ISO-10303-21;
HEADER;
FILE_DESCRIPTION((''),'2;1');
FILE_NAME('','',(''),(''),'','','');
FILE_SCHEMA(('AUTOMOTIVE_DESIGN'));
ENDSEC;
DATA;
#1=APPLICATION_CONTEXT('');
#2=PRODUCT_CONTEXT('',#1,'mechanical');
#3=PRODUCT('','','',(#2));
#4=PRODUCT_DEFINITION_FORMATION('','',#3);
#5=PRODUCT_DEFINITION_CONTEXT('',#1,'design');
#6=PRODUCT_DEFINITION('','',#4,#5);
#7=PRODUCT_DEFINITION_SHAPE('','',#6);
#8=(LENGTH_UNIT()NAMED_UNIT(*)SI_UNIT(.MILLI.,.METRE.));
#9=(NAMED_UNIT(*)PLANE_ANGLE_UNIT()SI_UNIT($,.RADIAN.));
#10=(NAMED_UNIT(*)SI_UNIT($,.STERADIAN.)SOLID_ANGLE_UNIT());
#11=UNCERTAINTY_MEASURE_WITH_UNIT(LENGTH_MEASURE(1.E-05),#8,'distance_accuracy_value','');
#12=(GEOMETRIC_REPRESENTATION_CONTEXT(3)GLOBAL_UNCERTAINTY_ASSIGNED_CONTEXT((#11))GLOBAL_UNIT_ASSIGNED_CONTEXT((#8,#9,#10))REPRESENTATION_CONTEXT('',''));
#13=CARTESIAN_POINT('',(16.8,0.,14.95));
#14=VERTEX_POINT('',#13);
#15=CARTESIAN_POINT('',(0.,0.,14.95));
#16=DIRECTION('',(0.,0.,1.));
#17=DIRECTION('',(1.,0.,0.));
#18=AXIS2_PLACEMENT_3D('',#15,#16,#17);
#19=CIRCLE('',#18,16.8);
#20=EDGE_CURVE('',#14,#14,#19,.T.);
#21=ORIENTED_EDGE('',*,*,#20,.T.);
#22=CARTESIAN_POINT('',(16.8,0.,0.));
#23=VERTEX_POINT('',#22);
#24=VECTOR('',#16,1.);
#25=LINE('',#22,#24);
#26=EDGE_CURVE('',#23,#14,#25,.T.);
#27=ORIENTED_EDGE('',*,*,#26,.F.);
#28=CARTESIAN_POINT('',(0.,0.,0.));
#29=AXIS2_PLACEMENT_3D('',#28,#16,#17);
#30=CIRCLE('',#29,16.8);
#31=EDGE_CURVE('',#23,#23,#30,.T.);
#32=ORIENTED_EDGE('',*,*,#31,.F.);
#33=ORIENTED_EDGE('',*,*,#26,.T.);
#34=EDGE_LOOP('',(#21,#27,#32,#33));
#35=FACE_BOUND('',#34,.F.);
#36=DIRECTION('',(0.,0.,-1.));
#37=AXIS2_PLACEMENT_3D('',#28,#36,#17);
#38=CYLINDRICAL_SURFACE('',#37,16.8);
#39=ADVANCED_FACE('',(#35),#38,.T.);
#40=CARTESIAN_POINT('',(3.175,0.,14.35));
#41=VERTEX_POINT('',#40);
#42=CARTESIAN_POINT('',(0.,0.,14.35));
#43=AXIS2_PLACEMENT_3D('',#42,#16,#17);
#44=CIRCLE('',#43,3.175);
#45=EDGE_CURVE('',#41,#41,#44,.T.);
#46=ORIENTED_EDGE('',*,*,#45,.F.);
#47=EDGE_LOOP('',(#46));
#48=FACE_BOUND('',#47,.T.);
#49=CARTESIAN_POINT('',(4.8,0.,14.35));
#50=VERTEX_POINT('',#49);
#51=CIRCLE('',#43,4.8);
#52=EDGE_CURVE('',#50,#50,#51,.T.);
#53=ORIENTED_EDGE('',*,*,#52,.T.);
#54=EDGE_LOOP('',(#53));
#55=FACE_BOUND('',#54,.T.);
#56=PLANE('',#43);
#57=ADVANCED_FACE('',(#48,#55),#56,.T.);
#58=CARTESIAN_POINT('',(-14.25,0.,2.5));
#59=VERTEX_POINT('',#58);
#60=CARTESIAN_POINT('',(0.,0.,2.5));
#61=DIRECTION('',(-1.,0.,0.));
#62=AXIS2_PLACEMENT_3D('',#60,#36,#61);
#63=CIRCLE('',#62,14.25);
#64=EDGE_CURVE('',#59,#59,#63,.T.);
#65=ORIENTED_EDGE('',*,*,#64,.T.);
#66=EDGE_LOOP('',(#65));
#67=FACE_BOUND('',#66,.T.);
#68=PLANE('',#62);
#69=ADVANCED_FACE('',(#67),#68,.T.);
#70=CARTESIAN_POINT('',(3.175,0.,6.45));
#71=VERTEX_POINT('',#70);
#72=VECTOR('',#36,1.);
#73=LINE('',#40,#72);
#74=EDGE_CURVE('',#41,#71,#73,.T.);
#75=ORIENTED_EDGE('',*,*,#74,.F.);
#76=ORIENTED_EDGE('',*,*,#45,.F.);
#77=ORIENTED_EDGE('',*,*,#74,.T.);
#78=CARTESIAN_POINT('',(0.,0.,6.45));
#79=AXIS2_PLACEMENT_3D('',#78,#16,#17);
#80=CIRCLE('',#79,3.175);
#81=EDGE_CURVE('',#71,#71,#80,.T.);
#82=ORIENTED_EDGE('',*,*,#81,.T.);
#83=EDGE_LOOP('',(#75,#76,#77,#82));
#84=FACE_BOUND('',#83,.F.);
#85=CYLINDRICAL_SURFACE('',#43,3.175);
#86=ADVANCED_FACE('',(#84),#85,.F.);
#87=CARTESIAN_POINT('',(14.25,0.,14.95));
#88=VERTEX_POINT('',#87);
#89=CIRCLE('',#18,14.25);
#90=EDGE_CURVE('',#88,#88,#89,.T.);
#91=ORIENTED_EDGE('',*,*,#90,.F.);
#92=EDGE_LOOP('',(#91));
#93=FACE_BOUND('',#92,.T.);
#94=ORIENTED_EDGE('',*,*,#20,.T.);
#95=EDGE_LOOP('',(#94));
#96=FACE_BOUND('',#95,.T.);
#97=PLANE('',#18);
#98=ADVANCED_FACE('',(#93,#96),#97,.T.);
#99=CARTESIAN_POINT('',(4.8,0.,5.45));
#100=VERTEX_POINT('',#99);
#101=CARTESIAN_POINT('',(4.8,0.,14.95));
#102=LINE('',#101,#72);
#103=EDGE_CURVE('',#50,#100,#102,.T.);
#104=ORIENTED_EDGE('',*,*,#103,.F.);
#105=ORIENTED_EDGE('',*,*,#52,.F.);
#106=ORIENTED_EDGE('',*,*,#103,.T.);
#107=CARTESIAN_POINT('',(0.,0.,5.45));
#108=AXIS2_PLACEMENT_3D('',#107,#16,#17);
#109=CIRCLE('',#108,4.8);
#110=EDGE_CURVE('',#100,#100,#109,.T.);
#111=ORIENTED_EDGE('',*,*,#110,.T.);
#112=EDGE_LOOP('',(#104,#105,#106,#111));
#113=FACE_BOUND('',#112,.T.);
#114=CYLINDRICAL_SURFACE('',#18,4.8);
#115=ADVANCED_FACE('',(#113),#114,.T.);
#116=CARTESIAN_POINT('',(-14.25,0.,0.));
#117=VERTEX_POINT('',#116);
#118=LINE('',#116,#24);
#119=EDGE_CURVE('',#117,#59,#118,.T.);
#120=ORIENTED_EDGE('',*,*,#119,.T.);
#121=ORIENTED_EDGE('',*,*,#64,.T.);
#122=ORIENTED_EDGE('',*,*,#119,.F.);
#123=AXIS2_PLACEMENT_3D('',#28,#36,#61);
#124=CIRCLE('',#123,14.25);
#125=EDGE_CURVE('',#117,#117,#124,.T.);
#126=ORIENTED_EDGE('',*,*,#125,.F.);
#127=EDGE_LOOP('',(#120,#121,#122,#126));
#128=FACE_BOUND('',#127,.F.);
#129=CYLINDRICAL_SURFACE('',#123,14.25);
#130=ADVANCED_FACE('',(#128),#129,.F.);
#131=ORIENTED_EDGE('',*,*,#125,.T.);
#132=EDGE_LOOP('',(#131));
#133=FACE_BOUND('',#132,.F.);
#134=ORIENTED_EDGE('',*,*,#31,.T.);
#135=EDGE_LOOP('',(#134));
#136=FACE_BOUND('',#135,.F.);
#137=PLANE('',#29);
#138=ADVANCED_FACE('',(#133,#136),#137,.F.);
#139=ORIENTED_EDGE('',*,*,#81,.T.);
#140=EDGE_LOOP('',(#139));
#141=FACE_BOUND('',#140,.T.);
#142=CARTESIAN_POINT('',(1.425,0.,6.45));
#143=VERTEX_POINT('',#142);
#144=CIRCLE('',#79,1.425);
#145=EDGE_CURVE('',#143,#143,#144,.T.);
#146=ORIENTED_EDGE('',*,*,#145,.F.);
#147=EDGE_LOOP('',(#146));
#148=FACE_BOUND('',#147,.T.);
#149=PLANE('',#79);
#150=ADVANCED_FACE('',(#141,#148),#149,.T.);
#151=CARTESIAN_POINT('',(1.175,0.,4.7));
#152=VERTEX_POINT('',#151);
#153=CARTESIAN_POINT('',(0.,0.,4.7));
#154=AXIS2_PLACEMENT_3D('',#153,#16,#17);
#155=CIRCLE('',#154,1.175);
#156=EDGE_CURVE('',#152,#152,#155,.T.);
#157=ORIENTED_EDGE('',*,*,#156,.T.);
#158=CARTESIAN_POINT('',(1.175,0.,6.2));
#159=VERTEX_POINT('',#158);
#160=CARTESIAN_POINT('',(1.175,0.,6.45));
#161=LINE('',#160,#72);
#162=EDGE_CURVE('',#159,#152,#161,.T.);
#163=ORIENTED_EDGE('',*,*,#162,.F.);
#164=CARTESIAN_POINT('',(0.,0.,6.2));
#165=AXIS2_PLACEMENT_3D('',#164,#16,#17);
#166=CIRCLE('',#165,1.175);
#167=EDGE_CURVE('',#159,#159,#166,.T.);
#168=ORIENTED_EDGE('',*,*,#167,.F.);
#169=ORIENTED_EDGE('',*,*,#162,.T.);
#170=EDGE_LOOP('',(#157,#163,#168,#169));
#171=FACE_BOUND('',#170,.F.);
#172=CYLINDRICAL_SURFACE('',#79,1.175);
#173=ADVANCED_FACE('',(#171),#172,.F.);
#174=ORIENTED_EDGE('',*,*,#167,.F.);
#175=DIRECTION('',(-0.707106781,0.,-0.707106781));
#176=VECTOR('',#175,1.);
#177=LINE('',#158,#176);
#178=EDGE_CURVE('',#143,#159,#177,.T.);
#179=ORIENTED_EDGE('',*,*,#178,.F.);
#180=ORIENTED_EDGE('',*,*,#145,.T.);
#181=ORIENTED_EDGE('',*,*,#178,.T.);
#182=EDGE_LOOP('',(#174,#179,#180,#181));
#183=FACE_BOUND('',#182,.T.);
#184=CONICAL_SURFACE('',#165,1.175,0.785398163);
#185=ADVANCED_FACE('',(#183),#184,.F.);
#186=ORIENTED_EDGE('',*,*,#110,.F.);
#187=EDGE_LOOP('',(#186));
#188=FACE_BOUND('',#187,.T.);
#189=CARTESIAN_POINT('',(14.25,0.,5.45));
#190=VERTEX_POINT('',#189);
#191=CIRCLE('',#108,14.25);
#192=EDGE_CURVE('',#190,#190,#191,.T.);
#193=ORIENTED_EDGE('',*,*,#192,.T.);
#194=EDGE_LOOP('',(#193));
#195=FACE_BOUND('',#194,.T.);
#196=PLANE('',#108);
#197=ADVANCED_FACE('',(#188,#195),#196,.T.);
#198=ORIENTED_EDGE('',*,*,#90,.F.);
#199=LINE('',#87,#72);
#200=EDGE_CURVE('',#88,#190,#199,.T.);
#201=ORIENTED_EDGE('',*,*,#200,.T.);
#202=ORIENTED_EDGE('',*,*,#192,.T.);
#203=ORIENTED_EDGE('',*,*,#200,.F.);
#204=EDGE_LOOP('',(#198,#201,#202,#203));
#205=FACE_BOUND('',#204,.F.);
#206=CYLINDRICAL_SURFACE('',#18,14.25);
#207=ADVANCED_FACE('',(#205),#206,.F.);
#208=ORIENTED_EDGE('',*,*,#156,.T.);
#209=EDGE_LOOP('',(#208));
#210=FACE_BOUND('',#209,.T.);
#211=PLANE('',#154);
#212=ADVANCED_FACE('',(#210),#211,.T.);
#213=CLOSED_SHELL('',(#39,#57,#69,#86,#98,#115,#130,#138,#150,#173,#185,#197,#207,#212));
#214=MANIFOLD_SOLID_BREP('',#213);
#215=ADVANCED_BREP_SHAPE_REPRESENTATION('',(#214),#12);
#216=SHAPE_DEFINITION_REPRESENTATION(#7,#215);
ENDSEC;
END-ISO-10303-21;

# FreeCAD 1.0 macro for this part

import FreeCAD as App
import Part
import Sketcher

V = App.Vector


def edges_at(feature, points):
    """Names of the edges that pass closest to the given points."""
    edges = feature.Shape.Edges
    near = lambda p: min(range(len(edges)), key=lambda i: edges[i].distToShape(Part.Vertex(*p))[0])
    return sorted({f"Edge{near(p) + 1}" for p in points})

doc = App.newDocument("Part")
params = doc.addObject("Spreadsheet::Sheet", "Params")
for row, (alias, value) in enumerate([
    ("sketch1_diameter", "33.6 mm"),
    ("pad1_length", "14.95 mm"),
    ("sketch2_diameter", "28.5 mm"),
    ("pocket1_length", "2.5 mm"),
    ("sketch3_diameter", "28.5 mm"),
    ("sketch3_diameter2", "9.6 mm"),
    ("pocket2_length", "9.5 mm"),
    ("sketch4_diameter", "9.6 mm"),
    ("pocket3_length", "0.6 mm"),
    ("sketch5_diameter", "6.35 mm"),
    ("pocket4_length", "7.9 mm"),
    ("sketch6_diameter", "2.35 mm"),
    ("pocket5_length", "1.75 mm"),
    ("chamfer_size", "0.25 mm"),
], start=1):
    params.set(f"A{row}", alias)
    params.set(f"B{row}", "=" + value)
    params.setAlias(f"B{row}", alias)

body = doc.addObject("PartDesign::Body", "Body")

sketch1 = doc.addObject("Sketcher::SketchObject", "Sketch")
body.addObject(sketch1)
sketch1.AttachmentSupport = (doc.XY_Plane, [""])
sketch1.MapMode = "FlatFace"
sketch1.addGeometry(Part.Circle(V(0, 0, 0), V(0, 0, 1), 17), False)
sketch1.addConstraint(Sketcher.Constraint("Coincident", 0, 3, -1, 1))
sketch1.addConstraint(Sketcher.Constraint("Diameter", 0, 33.6))
sketch1.setExpression("Constraints[1]", "Params.sketch1_diameter")
pad1 = doc.addObject("PartDesign::Pad", "Pad")
body.addObject(pad1)
pad1.Profile = sketch1
pad1.setExpression("Length", "Params.pad1_length")

sketch2 = doc.addObject("Sketcher::SketchObject", "Sketch001")
body.addObject(sketch2)
sketch2.AttachmentSupport = (doc.XY_Plane, [""])
sketch2.MapMode = "FlatFace"
sketch2.addGeometry(Part.Circle(V(0, 0, 0), V(0, 0, 1), 14), False)
sketch2.addConstraint(Sketcher.Constraint("Coincident", 0, 3, -1, 1))
sketch2.addConstraint(Sketcher.Constraint("Diameter", 0, 28.5))
sketch2.setExpression("Constraints[1]", "Params.sketch2_diameter")
pocket1 = doc.addObject("PartDesign::Pocket", "Pocket")
body.addObject(pocket1)
pocket1.Profile = sketch2
pocket1.setExpression("Length", "Params.pocket1_length")
pocket1.Reversed = True

sketch3 = doc.addObject("Sketcher::SketchObject", "Sketch002")
body.addObject(sketch3)
sketch3.AttachmentSupport = (doc.XY_Plane, [""])
sketch3.MapMode = "FlatFace"
sketch3.AttachmentOffset = App.Placement(V(0, 0, 14.95), App.Rotation())
sketch3.addGeometry(Part.Circle(V(0, 0, 0), V(0, 0, 1), 14.2), False)
sketch3.addGeometry(Part.Circle(V(0, 0, 0), V(0, 0, 1), 4.8), False)
sketch3.addConstraint(Sketcher.Constraint("Coincident", 0, 3, -1, 1))
sketch3.addConstraint(Sketcher.Constraint("Coincident", 1, 3, -1, 1))
sketch3.addConstraint(Sketcher.Constraint("Diameter", 0, 28.5))
sketch3.addConstraint(Sketcher.Constraint("Diameter", 1, 9.6))
sketch3.setExpression("Constraints[2]", "Params.sketch3_diameter")
sketch3.setExpression("Constraints[3]", "Params.sketch3_diameter2")
pocket2 = doc.addObject("PartDesign::Pocket", "Pocket001")
body.addObject(pocket2)
pocket2.Profile = sketch3
pocket2.setExpression("Length", "Params.pocket2_length")

sketch4 = doc.addObject("Sketcher::SketchObject", "Sketch003")
body.addObject(sketch4)
sketch4.AttachmentSupport = (doc.XY_Plane, [""])
sketch4.MapMode = "FlatFace"
sketch4.AttachmentOffset = App.Placement(V(0, 0, 14.95), App.Rotation())
sketch4.addGeometry(Part.Circle(V(0, 0, 0), V(0, 0, 1), 4.8), False)
sketch4.addConstraint(Sketcher.Constraint("Coincident", 0, 3, -1, 1))
sketch4.addConstraint(Sketcher.Constraint("Diameter", 0, 9.6))
sketch4.setExpression("Constraints[1]", "Params.sketch4_diameter")
pocket3 = doc.addObject("PartDesign::Pocket", "Pocket002")
body.addObject(pocket3)
pocket3.Profile = sketch4
pocket3.setExpression("Length", "Params.pocket3_length")

sketch5 = doc.addObject("Sketcher::SketchObject", "Sketch004")
body.addObject(sketch5)
sketch5.AttachmentSupport = (doc.XY_Plane, [""])
sketch5.MapMode = "FlatFace"
sketch5.AttachmentOffset = App.Placement(V(0, 0, 14.35), App.Rotation())
sketch5.addGeometry(Part.Circle(V(0, 0, 0), V(0, 0, 1), 3.2), False)
sketch5.addConstraint(Sketcher.Constraint("Coincident", 0, 3, -1, 1))
sketch5.addConstraint(Sketcher.Constraint("Diameter", 0, 6.35))
sketch5.setExpression("Constraints[1]", "Params.sketch5_diameter")
pocket4 = doc.addObject("PartDesign::Pocket", "Pocket003")
body.addObject(pocket4)
pocket4.Profile = sketch5
pocket4.setExpression("Length", "Params.pocket4_length")

sketch6 = doc.addObject("Sketcher::SketchObject", "Sketch005")
body.addObject(sketch6)
sketch6.AttachmentSupport = (doc.XY_Plane, [""])
sketch6.MapMode = "FlatFace"
sketch6.AttachmentOffset = App.Placement(V(0, 0, 6.45), App.Rotation())
sketch6.addGeometry(Part.Circle(V(0, 0, 0), V(0, 0, 1), 1.2), False)
sketch6.addConstraint(Sketcher.Constraint("Coincident", 0, 3, -1, 1))
sketch6.addConstraint(Sketcher.Constraint("Diameter", 0, 2.35))
sketch6.setExpression("Constraints[1]", "Params.sketch6_diameter")
pocket5 = doc.addObject("PartDesign::Pocket", "Pocket004")
body.addObject(pocket5)
pocket5.Profile = sketch6
pocket5.setExpression("Length", "Params.pocket5_length")
doc.recompute()

chamfer = doc.addObject("PartDesign::Chamfer", "Chamfer")
body.addObject(chamfer)
chamfer.Base = (pocket5, edges_at(pocket5, [(-1.175, 0, 6.45)]))
chamfer.setExpression("Size", "Params.chamfer_size")

doc.recompute()
